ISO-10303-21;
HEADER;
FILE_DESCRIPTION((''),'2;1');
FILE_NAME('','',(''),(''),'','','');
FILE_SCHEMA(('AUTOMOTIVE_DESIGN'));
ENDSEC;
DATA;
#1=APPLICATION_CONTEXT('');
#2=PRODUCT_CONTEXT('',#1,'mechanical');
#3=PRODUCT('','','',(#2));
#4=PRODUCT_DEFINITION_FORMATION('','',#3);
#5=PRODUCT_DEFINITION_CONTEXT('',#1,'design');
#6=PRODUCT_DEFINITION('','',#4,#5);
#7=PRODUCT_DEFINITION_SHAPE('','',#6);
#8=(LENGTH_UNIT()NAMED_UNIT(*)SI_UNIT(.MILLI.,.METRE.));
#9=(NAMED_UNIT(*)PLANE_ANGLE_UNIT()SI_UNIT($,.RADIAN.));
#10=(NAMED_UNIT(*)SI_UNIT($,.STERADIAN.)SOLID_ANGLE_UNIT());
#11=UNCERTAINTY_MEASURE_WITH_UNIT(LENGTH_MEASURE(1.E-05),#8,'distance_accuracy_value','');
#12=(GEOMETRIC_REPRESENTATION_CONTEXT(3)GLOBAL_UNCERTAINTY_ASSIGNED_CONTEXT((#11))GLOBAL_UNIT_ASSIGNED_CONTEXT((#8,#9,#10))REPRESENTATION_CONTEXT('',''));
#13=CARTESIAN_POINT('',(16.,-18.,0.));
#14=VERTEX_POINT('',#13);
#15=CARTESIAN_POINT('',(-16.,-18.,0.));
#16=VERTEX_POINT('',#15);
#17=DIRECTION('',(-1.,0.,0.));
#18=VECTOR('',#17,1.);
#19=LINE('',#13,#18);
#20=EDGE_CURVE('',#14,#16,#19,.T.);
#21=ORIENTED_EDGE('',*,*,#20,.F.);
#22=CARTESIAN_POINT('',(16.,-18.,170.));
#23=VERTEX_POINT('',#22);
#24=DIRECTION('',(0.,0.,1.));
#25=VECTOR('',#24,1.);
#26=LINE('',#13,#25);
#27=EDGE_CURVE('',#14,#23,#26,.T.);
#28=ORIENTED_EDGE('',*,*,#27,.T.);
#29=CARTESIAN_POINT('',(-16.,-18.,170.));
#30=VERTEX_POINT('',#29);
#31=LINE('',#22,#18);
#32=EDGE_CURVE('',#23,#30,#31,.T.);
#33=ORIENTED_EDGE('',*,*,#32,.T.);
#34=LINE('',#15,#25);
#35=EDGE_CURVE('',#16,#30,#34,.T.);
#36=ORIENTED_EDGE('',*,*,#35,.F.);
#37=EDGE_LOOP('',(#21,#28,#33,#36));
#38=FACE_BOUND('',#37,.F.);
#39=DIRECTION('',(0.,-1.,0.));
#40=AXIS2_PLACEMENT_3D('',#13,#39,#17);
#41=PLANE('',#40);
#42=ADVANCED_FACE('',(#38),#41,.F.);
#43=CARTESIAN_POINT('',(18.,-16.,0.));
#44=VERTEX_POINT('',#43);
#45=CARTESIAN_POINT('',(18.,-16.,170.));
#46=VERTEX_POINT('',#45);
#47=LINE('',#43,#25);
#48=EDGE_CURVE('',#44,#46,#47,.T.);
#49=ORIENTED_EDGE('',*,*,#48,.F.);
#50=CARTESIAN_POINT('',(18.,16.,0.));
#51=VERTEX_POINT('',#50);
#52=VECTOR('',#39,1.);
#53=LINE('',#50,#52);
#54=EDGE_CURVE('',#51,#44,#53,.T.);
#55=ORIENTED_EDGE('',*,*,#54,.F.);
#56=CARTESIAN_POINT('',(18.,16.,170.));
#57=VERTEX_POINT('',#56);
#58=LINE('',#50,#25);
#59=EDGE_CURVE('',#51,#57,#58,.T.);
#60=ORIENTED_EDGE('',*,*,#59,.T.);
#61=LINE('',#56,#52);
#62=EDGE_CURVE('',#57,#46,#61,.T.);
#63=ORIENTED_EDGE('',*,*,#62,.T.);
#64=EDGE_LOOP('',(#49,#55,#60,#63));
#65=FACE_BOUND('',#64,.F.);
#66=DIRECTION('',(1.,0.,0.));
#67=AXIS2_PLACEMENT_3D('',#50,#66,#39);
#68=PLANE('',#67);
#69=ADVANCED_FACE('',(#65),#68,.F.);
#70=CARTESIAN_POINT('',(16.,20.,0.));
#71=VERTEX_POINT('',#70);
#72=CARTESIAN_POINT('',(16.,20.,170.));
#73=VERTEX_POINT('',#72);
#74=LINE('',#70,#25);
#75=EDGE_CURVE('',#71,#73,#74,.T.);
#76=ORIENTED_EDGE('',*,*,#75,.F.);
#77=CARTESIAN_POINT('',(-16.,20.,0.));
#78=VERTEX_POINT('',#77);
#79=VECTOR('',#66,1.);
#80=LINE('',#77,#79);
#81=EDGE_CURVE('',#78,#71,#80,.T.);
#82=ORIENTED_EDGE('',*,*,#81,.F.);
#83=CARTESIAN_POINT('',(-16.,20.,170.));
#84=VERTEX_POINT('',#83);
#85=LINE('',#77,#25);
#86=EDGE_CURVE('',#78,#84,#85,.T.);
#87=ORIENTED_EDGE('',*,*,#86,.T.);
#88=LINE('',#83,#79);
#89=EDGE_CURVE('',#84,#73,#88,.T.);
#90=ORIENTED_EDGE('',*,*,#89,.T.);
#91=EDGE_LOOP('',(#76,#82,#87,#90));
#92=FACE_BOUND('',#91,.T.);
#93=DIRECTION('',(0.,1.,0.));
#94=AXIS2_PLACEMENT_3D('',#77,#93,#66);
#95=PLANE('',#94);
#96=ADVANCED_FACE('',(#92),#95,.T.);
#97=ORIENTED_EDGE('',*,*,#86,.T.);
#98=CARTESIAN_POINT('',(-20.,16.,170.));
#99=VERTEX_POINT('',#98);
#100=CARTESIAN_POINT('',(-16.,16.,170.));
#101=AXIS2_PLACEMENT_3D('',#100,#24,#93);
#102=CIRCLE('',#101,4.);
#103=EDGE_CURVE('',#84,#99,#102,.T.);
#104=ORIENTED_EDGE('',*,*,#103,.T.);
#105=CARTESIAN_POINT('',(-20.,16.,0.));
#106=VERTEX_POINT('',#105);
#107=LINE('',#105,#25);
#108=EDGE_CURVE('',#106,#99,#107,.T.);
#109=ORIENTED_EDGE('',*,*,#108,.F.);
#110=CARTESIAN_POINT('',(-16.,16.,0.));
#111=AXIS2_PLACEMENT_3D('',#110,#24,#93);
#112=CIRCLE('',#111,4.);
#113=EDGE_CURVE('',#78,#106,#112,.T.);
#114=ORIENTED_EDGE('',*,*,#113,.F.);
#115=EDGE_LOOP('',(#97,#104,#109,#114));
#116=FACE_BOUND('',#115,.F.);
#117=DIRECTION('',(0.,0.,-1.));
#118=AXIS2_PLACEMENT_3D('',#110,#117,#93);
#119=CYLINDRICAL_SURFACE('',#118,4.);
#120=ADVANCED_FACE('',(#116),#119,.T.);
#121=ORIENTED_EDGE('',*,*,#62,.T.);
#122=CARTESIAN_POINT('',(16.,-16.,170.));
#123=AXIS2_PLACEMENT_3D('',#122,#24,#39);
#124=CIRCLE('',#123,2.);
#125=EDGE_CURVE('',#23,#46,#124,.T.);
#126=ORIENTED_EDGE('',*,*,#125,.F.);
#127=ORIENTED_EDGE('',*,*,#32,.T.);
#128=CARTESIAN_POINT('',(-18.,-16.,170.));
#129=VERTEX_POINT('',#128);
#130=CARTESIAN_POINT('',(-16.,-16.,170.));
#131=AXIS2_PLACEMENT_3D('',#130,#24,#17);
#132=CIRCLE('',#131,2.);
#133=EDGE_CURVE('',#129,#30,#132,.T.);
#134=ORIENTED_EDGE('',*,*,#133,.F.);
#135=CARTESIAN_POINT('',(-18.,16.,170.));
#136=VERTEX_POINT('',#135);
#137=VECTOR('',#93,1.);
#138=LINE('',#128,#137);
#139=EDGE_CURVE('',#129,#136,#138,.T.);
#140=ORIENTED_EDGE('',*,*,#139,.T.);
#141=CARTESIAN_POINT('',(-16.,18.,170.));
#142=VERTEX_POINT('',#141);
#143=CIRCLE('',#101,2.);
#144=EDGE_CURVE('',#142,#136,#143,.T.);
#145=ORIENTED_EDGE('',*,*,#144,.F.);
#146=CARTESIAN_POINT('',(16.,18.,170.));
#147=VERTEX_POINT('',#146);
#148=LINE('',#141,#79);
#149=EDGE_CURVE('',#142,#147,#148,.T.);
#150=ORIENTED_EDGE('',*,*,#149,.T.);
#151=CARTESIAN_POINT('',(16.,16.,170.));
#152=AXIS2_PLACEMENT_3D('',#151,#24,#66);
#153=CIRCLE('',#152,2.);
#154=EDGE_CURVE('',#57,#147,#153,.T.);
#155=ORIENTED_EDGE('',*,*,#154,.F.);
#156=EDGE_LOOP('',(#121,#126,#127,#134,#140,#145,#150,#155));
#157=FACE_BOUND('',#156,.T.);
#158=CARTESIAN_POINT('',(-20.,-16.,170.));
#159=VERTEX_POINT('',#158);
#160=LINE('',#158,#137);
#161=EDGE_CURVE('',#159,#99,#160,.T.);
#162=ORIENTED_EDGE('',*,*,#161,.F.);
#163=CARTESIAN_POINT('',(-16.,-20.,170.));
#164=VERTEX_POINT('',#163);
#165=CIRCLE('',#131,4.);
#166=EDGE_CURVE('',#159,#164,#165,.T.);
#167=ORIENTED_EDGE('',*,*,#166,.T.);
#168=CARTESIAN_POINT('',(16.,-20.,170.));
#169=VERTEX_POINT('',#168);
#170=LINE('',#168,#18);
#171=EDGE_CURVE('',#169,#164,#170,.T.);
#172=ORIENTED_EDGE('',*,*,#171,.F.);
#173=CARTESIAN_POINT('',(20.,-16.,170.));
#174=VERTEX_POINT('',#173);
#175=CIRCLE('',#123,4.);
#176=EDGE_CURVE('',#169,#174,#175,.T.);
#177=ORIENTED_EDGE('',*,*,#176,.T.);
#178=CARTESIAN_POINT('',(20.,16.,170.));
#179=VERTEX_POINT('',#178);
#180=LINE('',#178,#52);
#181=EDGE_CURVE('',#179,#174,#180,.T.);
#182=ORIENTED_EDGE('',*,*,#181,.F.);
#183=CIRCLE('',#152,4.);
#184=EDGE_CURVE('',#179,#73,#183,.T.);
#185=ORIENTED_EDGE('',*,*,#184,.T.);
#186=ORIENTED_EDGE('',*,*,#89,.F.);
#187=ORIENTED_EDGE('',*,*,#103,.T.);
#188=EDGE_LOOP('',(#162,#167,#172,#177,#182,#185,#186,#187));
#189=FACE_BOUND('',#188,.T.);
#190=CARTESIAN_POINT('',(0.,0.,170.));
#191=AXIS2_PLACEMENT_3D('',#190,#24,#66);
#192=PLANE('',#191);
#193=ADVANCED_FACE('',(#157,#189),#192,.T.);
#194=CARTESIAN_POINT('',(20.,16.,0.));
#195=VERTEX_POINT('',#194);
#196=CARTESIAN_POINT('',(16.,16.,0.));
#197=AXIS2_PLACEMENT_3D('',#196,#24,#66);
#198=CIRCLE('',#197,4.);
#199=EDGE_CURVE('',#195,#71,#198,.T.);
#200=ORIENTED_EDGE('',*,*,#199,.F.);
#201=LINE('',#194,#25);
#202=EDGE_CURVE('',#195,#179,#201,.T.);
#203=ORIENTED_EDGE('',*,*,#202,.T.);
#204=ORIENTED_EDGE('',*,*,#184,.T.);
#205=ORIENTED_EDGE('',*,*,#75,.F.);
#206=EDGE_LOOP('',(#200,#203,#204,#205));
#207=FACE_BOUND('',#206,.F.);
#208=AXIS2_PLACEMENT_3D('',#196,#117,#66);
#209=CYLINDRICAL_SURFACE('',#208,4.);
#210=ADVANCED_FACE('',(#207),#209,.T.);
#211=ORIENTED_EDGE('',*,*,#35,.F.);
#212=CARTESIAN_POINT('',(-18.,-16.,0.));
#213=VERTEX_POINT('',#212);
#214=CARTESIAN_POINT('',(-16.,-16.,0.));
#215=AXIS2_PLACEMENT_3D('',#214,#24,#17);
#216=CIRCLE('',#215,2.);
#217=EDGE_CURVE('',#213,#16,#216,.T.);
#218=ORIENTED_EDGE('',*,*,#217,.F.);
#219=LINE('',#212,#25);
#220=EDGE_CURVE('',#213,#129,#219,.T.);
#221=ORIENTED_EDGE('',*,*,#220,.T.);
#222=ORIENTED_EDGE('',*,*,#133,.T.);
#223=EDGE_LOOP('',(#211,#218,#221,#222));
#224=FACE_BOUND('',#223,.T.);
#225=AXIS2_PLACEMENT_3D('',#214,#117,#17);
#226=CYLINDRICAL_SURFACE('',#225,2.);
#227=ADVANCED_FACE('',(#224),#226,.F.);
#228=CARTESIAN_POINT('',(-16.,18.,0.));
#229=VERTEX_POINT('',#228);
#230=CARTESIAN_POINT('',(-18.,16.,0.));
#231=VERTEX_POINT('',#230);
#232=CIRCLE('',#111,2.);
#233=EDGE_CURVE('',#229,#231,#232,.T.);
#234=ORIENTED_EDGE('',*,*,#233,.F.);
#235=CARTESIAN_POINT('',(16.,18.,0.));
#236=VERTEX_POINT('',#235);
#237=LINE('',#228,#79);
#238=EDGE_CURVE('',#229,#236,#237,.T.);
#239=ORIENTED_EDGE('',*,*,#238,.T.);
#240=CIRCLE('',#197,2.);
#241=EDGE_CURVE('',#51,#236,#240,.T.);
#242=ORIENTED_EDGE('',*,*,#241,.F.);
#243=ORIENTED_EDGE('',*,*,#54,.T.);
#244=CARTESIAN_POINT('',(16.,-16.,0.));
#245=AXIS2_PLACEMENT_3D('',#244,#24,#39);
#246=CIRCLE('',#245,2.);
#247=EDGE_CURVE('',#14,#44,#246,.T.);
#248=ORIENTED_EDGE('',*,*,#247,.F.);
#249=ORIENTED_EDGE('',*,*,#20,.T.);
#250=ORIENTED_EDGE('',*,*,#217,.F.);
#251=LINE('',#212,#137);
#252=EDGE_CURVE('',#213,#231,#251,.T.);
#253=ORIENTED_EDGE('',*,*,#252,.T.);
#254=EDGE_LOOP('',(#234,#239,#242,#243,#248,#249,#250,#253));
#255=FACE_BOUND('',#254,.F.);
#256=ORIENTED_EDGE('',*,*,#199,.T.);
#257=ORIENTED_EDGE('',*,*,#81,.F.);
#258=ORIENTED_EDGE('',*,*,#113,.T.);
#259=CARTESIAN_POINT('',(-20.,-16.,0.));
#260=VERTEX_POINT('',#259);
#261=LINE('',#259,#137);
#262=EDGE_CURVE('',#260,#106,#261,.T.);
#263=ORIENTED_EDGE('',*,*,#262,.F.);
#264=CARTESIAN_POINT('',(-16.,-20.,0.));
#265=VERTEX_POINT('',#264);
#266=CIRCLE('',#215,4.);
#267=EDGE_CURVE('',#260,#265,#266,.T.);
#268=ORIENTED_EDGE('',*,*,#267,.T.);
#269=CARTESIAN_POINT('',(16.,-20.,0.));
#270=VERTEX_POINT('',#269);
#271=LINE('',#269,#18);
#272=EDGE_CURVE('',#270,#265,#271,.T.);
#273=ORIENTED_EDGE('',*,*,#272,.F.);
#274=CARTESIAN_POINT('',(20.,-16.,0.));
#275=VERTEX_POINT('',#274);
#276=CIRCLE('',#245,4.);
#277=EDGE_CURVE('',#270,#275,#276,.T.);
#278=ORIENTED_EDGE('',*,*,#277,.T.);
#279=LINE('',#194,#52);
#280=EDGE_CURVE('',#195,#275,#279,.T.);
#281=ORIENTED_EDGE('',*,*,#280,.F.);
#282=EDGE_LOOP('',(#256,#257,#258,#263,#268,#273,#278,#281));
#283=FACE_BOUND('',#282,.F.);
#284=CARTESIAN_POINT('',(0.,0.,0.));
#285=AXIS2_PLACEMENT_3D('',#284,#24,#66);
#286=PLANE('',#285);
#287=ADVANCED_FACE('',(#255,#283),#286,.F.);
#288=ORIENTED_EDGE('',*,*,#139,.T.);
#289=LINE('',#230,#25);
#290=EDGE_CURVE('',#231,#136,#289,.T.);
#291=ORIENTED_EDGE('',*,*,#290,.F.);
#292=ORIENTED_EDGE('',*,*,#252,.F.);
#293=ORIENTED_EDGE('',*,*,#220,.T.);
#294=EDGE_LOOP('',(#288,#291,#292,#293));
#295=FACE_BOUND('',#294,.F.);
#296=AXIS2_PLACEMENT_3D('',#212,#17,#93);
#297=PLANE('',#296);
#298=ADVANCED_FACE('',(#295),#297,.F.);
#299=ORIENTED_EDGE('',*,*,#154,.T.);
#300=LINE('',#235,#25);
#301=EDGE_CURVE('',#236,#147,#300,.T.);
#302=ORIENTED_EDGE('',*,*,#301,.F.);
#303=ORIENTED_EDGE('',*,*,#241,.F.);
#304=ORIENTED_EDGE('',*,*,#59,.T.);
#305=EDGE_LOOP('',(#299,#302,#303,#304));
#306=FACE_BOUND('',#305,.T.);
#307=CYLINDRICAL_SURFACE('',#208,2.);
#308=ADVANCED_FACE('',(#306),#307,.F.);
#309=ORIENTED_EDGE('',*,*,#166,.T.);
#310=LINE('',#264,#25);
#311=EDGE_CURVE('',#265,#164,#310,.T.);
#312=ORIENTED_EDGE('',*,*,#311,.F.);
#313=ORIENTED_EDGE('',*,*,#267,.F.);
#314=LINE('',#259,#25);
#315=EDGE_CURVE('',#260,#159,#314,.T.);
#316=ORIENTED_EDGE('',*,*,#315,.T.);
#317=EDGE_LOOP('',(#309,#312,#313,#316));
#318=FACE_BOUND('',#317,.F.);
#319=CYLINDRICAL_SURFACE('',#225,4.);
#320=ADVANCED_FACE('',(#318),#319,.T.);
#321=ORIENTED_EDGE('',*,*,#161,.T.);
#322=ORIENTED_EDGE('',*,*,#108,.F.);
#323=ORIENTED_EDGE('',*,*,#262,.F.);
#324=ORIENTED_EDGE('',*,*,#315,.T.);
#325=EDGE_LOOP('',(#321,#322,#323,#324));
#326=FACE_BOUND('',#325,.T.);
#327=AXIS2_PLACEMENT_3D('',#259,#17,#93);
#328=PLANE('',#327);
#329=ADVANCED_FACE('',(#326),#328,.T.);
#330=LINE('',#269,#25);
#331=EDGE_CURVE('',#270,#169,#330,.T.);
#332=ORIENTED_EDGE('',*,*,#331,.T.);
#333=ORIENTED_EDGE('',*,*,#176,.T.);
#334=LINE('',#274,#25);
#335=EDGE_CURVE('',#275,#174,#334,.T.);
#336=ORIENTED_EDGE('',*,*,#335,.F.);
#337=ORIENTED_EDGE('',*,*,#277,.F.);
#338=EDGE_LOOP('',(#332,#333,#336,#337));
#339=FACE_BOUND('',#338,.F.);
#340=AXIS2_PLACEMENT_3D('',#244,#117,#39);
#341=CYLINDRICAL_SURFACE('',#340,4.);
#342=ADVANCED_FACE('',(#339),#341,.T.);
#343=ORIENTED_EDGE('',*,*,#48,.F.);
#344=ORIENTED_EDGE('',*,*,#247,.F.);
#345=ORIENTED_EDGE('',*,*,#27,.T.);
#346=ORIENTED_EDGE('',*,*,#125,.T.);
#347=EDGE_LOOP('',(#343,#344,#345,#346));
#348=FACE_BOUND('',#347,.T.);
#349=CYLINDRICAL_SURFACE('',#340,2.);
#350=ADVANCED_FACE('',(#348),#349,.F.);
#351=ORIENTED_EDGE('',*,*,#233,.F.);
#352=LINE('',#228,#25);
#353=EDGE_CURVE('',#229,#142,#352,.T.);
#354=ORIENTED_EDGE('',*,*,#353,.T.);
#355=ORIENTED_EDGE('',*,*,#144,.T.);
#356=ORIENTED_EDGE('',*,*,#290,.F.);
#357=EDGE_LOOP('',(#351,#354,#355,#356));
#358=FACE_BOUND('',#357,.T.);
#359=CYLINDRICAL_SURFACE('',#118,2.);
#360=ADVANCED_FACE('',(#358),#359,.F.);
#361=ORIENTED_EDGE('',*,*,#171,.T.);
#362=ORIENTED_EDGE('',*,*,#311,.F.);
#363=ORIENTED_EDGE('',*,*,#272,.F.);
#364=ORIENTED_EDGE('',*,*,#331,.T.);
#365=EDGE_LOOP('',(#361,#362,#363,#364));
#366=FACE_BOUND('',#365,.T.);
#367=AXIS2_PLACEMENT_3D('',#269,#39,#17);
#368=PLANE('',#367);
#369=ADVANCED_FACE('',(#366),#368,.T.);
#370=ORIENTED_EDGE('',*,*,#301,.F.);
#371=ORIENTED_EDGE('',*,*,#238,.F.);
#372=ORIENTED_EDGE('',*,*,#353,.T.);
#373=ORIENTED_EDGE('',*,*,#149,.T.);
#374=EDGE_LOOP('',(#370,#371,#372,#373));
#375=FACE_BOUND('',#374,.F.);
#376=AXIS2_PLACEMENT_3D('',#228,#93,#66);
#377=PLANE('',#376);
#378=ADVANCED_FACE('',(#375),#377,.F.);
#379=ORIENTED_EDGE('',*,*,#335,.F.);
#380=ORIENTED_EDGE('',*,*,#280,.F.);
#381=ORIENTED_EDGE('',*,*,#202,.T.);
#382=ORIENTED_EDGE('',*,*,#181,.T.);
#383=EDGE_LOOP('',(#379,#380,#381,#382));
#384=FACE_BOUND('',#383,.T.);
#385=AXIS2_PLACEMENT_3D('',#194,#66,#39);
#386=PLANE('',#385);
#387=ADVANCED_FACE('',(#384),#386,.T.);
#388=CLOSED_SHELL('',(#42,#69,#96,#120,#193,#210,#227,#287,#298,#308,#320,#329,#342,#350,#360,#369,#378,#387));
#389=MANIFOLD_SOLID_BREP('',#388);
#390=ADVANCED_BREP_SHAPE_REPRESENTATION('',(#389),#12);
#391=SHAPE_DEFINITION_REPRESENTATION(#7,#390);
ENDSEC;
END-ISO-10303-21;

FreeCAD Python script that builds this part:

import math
import FreeCAD as App
import Part
import Sketcher

V = App.Vector

doc = App.newDocument("Part")
body = doc.addObject("PartDesign::Body", "Body")

sketch1 = body.newObject("Sketcher::SketchObject", "Sketch")
sketch1.AttachmentSupport = (doc.getObject("XY_Plane"), [""])
sketch1.MapMode = "FlatFace"
sketch1.addGeometry([
    Part.LineSegment(V(-20, 16, 0), V(-20, -16, 0)),
    Part.ArcOfCircle(Part.Circle(V(-16, -16, 0), V(0, 0, 1), 4), math.radians(180), math.radians(270)),
    Part.LineSegment(V(-16, -20, 0), V(16, -20, 0)),
    Part.ArcOfCircle(Part.Circle(V(16, -16, 0), V(0, 0, 1), 4), math.radians(-90), math.radians(0)),
    Part.LineSegment(V(20, -16, 0), V(20, 16, 0)),
    Part.ArcOfCircle(Part.Circle(V(16, 16, 0), V(0, 0, 1), 4), math.radians(0), math.radians(90)),
    Part.LineSegment(V(16, 20, 0), V(-16, 20, 0)),
    Part.ArcOfCircle(Part.Circle(V(-16, 16, 0), V(0, 0, 1), 4), math.radians(90), math.radians(180)),
    Part.ArcOfCircle(Part.Circle(V(-16, 16, 0), V(0, 0, 1), 2), math.radians(90), math.radians(180)),
    Part.LineSegment(V(-16, 18, 0), V(16, 18, 0)),
    Part.ArcOfCircle(Part.Circle(V(16, 16, 0), V(0, 0, 1), 2), math.radians(0), math.radians(90)),
    Part.LineSegment(V(18, 16, 0), V(18, -16, 0)),
    Part.ArcOfCircle(Part.Circle(V(16, -16, 0), V(0, 0, 1), 2), math.radians(-90), math.radians(0)),
    Part.LineSegment(V(16, -18, 0), V(-16, -18, 0)),
    Part.ArcOfCircle(Part.Circle(V(-16, -16, 0), V(0, 0, 1), 2), math.radians(180), math.radians(270)),
    Part.LineSegment(V(-18, -16, 0), V(-18, 16, 0)),
], False)
sketch1.addConstraint([
    Sketcher.Constraint("Tangent", 0, 2, 1, 1),
    Sketcher.Constraint("Tangent", 1, 2, 2, 1),
    Sketcher.Constraint("Tangent", 2, 2, 3, 1),
    Sketcher.Constraint("Tangent", 3, 2, 4, 1),
    Sketcher.Constraint("Tangent", 4, 2, 5, 1),
    Sketcher.Constraint("Tangent", 5, 2, 6, 1),
    Sketcher.Constraint("Tangent", 6, 2, 7, 1),
    Sketcher.Constraint("Tangent", 7, 2, 0, 1),
    Sketcher.Constraint("Tangent", 8, 1, 9, 1),
    Sketcher.Constraint("Tangent", 9, 2, 10, 2),
    Sketcher.Constraint("Tangent", 10, 1, 11, 1),
    Sketcher.Constraint("Tangent", 11, 2, 12, 2),
    Sketcher.Constraint("Tangent", 12, 1, 13, 1),
    Sketcher.Constraint("Tangent", 13, 2, 14, 2),
    Sketcher.Constraint("Tangent", 14, 1, 15, 1),
    Sketcher.Constraint("Tangent", 15, 2, 8, 2),
    Sketcher.Constraint("Vertical", 0),
    Sketcher.Constraint("Horizontal", 2),
    Sketcher.Constraint("Vertical", 4),
    Sketcher.Constraint("Horizontal", 6),
    Sketcher.Constraint("Horizontal", 9),
    Sketcher.Constraint("Vertical", 11),
    Sketcher.Constraint("Horizontal", 13),
    Sketcher.Constraint("Vertical", 15),
    Sketcher.Constraint("Coincident", 8, 3, 7, 3),
    Sketcher.Constraint("Coincident", 10, 3, 5, 3),
    Sketcher.Constraint("Coincident", 12, 3, 3, 3),
    Sketcher.Constraint("Equal", 1, 3),
    Sketcher.Constraint("Equal", 3, 5),
    Sketcher.Constraint("Equal", 5, 7),
    Sketcher.Constraint("Equal", 12, 14),
    Sketcher.Constraint("Symmetric", 1, 3, 5, 3, -1, 1),
    Sketcher.Constraint("Equal", 13, 0),
    Sketcher.Constraint("Radius", 1, 4.0),
    Sketcher.Constraint("Radius", 8, 2.0),
    Sketcher.Constraint("DistanceX", 0, 2, -1, 1, 20.0),
])
pad1 = body.newObject("PartDesign::Pad", "Pad")
pad1.Profile = sketch1
pad1.Length = 170

doc.recompute()
